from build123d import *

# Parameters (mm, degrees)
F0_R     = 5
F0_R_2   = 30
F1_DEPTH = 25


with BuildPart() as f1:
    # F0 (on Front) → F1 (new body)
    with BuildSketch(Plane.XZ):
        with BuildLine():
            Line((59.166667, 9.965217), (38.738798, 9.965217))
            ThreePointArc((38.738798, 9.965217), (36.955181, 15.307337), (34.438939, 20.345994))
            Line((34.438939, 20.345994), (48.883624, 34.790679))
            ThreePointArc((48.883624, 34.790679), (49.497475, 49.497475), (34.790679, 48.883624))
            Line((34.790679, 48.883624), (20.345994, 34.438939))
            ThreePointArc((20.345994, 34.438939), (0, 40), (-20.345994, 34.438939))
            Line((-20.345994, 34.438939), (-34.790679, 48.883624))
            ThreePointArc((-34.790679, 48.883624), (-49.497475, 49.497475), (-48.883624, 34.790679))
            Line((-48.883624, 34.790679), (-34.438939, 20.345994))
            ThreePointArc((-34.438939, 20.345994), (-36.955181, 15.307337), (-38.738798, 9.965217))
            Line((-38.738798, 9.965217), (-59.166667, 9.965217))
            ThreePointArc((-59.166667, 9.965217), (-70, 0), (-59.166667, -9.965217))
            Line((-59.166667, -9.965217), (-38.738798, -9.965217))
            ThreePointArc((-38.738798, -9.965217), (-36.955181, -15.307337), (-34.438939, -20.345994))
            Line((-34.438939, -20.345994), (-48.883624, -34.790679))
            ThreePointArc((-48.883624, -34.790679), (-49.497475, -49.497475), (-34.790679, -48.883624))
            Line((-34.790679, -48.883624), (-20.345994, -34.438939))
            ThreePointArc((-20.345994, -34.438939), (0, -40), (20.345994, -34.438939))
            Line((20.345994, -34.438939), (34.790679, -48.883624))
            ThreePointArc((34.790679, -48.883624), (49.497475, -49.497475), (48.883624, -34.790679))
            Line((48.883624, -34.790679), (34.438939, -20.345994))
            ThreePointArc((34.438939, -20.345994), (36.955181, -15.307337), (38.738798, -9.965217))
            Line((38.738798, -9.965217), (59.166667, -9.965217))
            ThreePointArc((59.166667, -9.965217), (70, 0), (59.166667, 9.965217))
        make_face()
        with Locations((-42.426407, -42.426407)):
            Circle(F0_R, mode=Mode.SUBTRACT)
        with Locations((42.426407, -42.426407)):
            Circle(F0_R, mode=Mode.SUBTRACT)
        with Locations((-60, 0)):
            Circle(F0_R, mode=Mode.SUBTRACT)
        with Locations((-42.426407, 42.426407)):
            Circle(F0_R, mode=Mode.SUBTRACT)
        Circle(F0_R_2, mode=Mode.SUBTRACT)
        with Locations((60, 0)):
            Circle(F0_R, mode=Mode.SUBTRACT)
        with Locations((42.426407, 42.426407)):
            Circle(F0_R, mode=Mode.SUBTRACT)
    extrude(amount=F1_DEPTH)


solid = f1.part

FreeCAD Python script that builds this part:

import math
import FreeCAD as App
import Part
import Sketcher

V = App.Vector
Q = App.Units.Quantity

doc = App.newDocument("Part")
params = doc.addObject("Spreadsheet::Sheet", "Params")
for row, (alias, value) in enumerate([
    ("sketch1_diameter", "10 mm"),
    ("sketch1_diameter2", "60 mm"),
    ("sketch1_radius", "10 mm"),
    ("sketch1_radius2", "39.999999 mm"),
    ("pad1_length", "25 mm"),
], start=1):
    params.set(f"A{row}", alias)
    params.set(f"B{row}", "=" + value)
    params.setAlias(f"B{row}", alias)

body = doc.addObject("PartDesign::Body", "Body")

sketch1 = body.newObject("Sketcher::SketchObject", "Sketch")
sketch1.AttachmentSupport = (doc.getObject("XZ_Plane"), [""])
sketch1.MapMode = "FlatFace"
sketch1.addGeometry(Part.LineSegment(V(59, 10, 0), V(39, 10, 0)), False)
sketch1.addGeometry(Part.ArcOfCircle(Part.Circle(V(0, 0, 0), V(0, 0, 1), 40), math.radians(14.43), math.radians(30.57)), False)
sketch1.addGeometry(Part.LineSegment(V(34, 20, 0), V(49, 35, 0)), False)
sketch1.addGeometry(Part.ArcOfCircle(Part.Circle(V(42, 42, 0), V(0, 0, 1), 10), math.radians(-50), math.radians(140)), False)
sketch1.addGeometry(Part.LineSegment(V(35, 49, 0), V(20, 34, 0)), False)
sketch1.addGeometry(Part.ArcOfCircle(Part.Circle(V(0, 0, 0), V(0, 0, 1), 40), math.radians(59), math.radians(121)), False)
sketch1.addGeometry(Part.LineSegment(V(-20, 34, 0), V(-35, 49, 0)), False)
sketch1.addGeometry(Part.ArcOfCircle(Part.Circle(V(-42, 42, 0), V(0, 0, 1), 10), math.radians(40), math.radians(230)), False)
sketch1.addGeometry(Part.LineSegment(V(-49, 35, 0), V(-34, 20, 0)), False)
sketch1.addGeometry(Part.ArcOfCircle(Part.Circle(V(0, 0, 0), V(0, 0, 1), 40), math.radians(149.43), math.radians(165.57)), False)
sketch1.addGeometry(Part.LineSegment(V(-39, 10, 0), V(-59, 10, 0)), False)
sketch1.addGeometry(Part.ArcOfCircle(Part.Circle(V(-60, 0, 0), V(0, 0, 1), 10), math.radians(85), math.radians(275)), False)
sketch1.addGeometry(Part.LineSegment(V(-59, -10, 0), V(-39, -10, 0)), False)
sketch1.addGeometry(Part.ArcOfCircle(Part.Circle(V(0, 0, 0), V(0, 0, 1), 40), math.radians(-165.57), math.radians(-149.43)), False)
sketch1.addGeometry(Part.LineSegment(V(-34, -20, 0), V(-49, -35, 0)), False)
sketch1.addGeometry(Part.ArcOfCircle(Part.Circle(V(-42, -42, 0), V(0, 0, 1), 10), math.radians(130), math.radians(320)), False)
sketch1.addGeometry(Part.LineSegment(V(-35, -49, 0), V(-20, -34, 0)), False)
sketch1.addGeometry(Part.ArcOfCircle(Part.Circle(V(0, 0, 0), V(0, 0, 1), 40), math.radians(-121), math.radians(-59)), False)
sketch1.addGeometry(Part.LineSegment(V(20, -34, 0), V(35, -49, 0)), False)
sketch1.addGeometry(Part.ArcOfCircle(Part.Circle(V(42, -42, 0), V(0, 0, 1), 10), math.radians(-140), math.radians(50)), False)
sketch1.addGeometry(Part.LineSegment(V(49, -35, 0), V(34, -20, 0)), False)
sketch1.addGeometry(Part.ArcOfCircle(Part.Circle(V(0, 0, 0), V(0, 0, 1), 40), math.radians(-30.57), math.radians(-14.43)), False)
sketch1.addGeometry(Part.LineSegment(V(39, -10, 0), V(59, -10, 0)), False)
sketch1.addGeometry(Part.ArcOfCircle(Part.Circle(V(60, 0, 0), V(0, 0, 1), 10), math.radians(-95), math.radians(95)), False)
sketch1.addGeometry(Part.Circle(V(-42, -42, 0), V(0, 0, 1), 5), False)
sketch1.addGeometry(Part.Circle(V(42, -42, 0), V(0, 0, 1), 5), False)
sketch1.addGeometry(Part.Circle(V(-60, 0, 0), V(0, 0, 1), 5), False)
sketch1.addGeometry(Part.Circle(V(-42, 42, 0), V(0, 0, 1), 5), False)
sketch1.addGeometry(Part.Circle(V(0, 0, 0), V(0, 0, 1), 30), False)
sketch1.addGeometry(Part.Circle(V(60, 0, 0), V(0, 0, 1), 5), False)
sketch1.addGeometry(Part.Circle(V(42, 42, 0), V(0, 0, 1), 5), False)
sketch1.addConstraint(Sketcher.Constraint("Coincident", 0, 2, 1, 1))
sketch1.addConstraint(Sketcher.Constraint("Coincident", 1, 2, 2, 1))
sketch1.addConstraint(Sketcher.Constraint("Coincident", 2, 2, 3, 1))
sketch1.addConstraint(Sketcher.Constraint("Coincident", 3, 2, 4, 1))
sketch1.addConstraint(Sketcher.Constraint("Coincident", 4, 2, 5, 1))
sketch1.addConstraint(Sketcher.Constraint("Coincident", 5, 2, 6, 1))
sketch1.addConstraint(Sketcher.Constraint("Coincident", 6, 2, 7, 1))
sketch1.addConstraint(Sketcher.Constraint("Coincident", 7, 2, 8, 1))
sketch1.addConstraint(Sketcher.Constraint("Coincident", 8, 2, 9, 1))
sketch1.addConstraint(Sketcher.Constraint("Coincident", 9, 2, 10, 1))
sketch1.addConstraint(Sketcher.Constraint("Coincident", 10, 2, 11, 1))
sketch1.addConstraint(Sketcher.Constraint("Coincident", 11, 2, 12, 1))
sketch1.addConstraint(Sketcher.Constraint("Coincident", 12, 2, 13, 1))
sketch1.addConstraint(Sketcher.Constraint("Coincident", 13, 2, 14, 1))
sketch1.addConstraint(Sketcher.Constraint("Coincident", 14, 2, 15, 1))
sketch1.addConstraint(Sketcher.Constraint("Coincident", 15, 2, 16, 1))
sketch1.addConstraint(Sketcher.Constraint("Coincident", 16, 2, 17, 1))
sketch1.addConstraint(Sketcher.Constraint("Coincident", 17, 2, 18, 1))
sketch1.addConstraint(Sketcher.Constraint("Coincident", 18, 2, 19, 1))
sketch1.addConstraint(Sketcher.Constraint("Coincident", 19, 2, 20, 1))
sketch1.addConstraint(Sketcher.Constraint("Coincident", 20, 2, 21, 1))
sketch1.addConstraint(Sketcher.Constraint("Coincident", 21, 2, 22, 1))
sketch1.addConstraint(Sketcher.Constraint("Coincident", 22, 2, 23, 1))
sketch1.addConstraint(Sketcher.Constraint("Coincident", 23, 2, 0, 1))
sketch1.addConstraint(Sketcher.Constraint("Horizontal", 0))
sketch1.addConstraint(Sketcher.Constraint("Horizontal", 10))
sketch1.addConstraint(Sketcher.Constraint("Horizontal", 12))
sketch1.addConstraint(Sketcher.Constraint("Horizontal", 22))
sketch1.addConstraint(Sketcher.Constraint("Coincident", 5, 3, -1, 1))
sketch1.addConstraint(Sketcher.Constraint("Coincident", 17, 3, -1, 1))
sketch1.addConstraint(Sketcher.Constraint("Coincident", 28, 3, -1, 1))
sketch1.addConstraint(Sketcher.Constraint("Coincident", 24, 3, 15, 3))
sketch1.addConstraint(Sketcher.Constraint("Coincident", 25, 3, 19, 3))
sketch1.addConstraint(Sketcher.Constraint("Coincident", 26, 3, 11, 3))
sketch1.addConstraint(Sketcher.Constraint("Coincident", 27, 3, 7, 3))
sketch1.addConstraint(Sketcher.Constraint("Coincident", 29, 3, 23, 3))
sketch1.addConstraint(Sketcher.Constraint("Coincident", 30, 3, 3, 3))
sketch1.addConstraint(Sketcher.Constraint("Equal", 3, 7))
sketch1.addConstraint(Sketcher.Constraint("Equal", 1, 9))
sketch1.addConstraint(Sketcher.Constraint("Equal", 7, 11))
sketch1.addConstraint(Sketcher.Constraint("Equal", 9, 13))
sketch1.addConstraint(Sketcher.Constraint("Equal", 11, 15))
sketch1.addConstraint(Sketcher.Constraint("Equal", 5, 17))
sketch1.addConstraint(Sketcher.Constraint("Equal", 15, 19))
sketch1.addConstraint(Sketcher.Constraint("Equal", 13, 21))
sketch1.addConstraint(Sketcher.Constraint("Equal", 19, 23))
sketch1.addConstraint(Sketcher.Constraint("Equal", 24, 25))
sketch1.addConstraint(Sketcher.Constraint("Equal", 25, 26))
sketch1.addConstraint(Sketcher.Constraint("Equal", 26, 27))
sketch1.addConstraint(Sketcher.Constraint("Equal", 27, 29))
sketch1.addConstraint(Sketcher.Constraint("Equal", 29, 30))
sketch1.addConstraint(Sketcher.Constraint("Symmetric", 1, 3, 13, 3, -1, 1))
sketch1.addConstraint(Sketcher.Constraint("Symmetric", 3, 3, 15, 3, -1, 1))
sketch1.addConstraint(Sketcher.Constraint("Symmetric", 7, 3, 19, 3, -1, 1))
sketch1.addConstraint(Sketcher.Constraint("Symmetric", 9, 3, 21, 3, -1, 1))
sketch1.addConstraint(Sketcher.Constraint("Symmetric", 11, 3, 23, 3, -1, 1))
sketch1.addConstraint(Sketcher.Constraint("Symmetric", 3, 3, 7, 3, -2))
sketch1.addConstraint(Sketcher.Constraint("Symmetric", 1, 3, 9, 3, -2))
sketch1.addConstraint(Sketcher.Constraint("Symmetric", 11, 2, 22, 2, -2))
sketch1.addConstraint(Sketcher.Constraint("Parallel", 2, 4))
sketch1.addConstraint(Sketcher.Constraint("Perpendicular", 4, 6))
sketch1.addConstraint(Sketcher.Constraint("Parallel", 6, 8))
sketch1.addConstraint(Sketcher.Constraint("Perpendicular", 8, 14))
sketch1.addConstraint(Sketcher.Constraint("Parallel", 14, 16))
sketch1.addConstraint(Sketcher.Constraint("Perpendicular", 16, 18))
sketch1.addConstraint(Sketcher.Constraint("Parallel", 18, 20))
sketch1.addConstraint(Sketcher.Constraint("Horizontal", 4, 2, 5, 2))
sketch1.addConstraint(Sketcher.Constraint("Horizontal", 3, 2, 6, 2))
sketch1.addConstraint(Sketcher.Constraint("Horizontal", 2, 2, 7, 2))
sketch1.addConstraint(Sketcher.Constraint("Horizontal", 0, 2, 9, 2))
sketch1.addConstraint(Sketcher.Constraint("Horizontal", 16, 2, 17, 2))
sketch1.addConstraint(Sketcher.Constraint("Horizontal", 14, 2, 19, 2))
sketch1.addConstraint(Sketcher.Constraint("Vertical", 10, 2, 11, 2))
sketch1.addConstraint(Sketcher.Constraint("Vertical", 8, 2, 13, 2))
sketch1.addConstraint(Sketcher.Constraint("Vertical", 6, 2, 15, 2))
sketch1.addConstraint(Sketcher.Constraint("Equal", 2, 4))
sketch1.addConstraint(Sketcher.Constraint("Diameter", 24, Q("10 mm")))
sketch1.addConstraint(Sketcher.Constraint("Diameter", 28, Q("60 mm")))
sketch1.addConstraint(Sketcher.Constraint("Radius", 3, Q("10 mm")))
sketch1.addConstraint(Sketcher.Constraint("Radius", 5, Q("39.999999 mm")))
sketch1.addConstraint(Sketcher.Constraint("DistanceX", 11, 3, -1, 1, Q("60 mm")))
sketch1.addConstraint(Sketcher.Constraint("Radius", 1, Q("40.000046 mm")))
sketch1.addConstraint(Sketcher.Constraint("DistanceX", 0, 2, 0, 1, Q("20.427869 mm")))
sketch1.addConstraint(Sketcher.Constraint("DistanceX", -1, 1, 0, 2, Q("38.738798 mm")))
sketch1.addConstraint(Sketcher.Constraint("Distance", 2, Q("20.427869 mm")))
sketch1.addConstraint(Sketcher.Constraint("DistanceX", -1, 1, 1, 2, Q("34.438939 mm")))
sketch1.addConstraint(Sketcher.Constraint("DistanceY", -1, 1, 2, 2, Q("34.790679 mm")))
sketch1.addConstraint(Sketcher.Constraint("DistanceX", -1, 1, 3, 2, Q("34.790679 mm")))
sketch1.setExpression("Constraints[76]", "Params.sketch1_diameter")
sketch1.setExpression("Constraints[77]", "Params.sketch1_diameter2")
sketch1.setExpression("Constraints[78]", "Params.sketch1_radius")
sketch1.setExpression("Constraints[79]", "Params.sketch1_radius2")
pad1 = body.newObject("PartDesign::Pad", "Pad")
pad1.Profile = sketch1
pad1.setExpression("Length", "Params.pad1_length")

doc.recompute()
